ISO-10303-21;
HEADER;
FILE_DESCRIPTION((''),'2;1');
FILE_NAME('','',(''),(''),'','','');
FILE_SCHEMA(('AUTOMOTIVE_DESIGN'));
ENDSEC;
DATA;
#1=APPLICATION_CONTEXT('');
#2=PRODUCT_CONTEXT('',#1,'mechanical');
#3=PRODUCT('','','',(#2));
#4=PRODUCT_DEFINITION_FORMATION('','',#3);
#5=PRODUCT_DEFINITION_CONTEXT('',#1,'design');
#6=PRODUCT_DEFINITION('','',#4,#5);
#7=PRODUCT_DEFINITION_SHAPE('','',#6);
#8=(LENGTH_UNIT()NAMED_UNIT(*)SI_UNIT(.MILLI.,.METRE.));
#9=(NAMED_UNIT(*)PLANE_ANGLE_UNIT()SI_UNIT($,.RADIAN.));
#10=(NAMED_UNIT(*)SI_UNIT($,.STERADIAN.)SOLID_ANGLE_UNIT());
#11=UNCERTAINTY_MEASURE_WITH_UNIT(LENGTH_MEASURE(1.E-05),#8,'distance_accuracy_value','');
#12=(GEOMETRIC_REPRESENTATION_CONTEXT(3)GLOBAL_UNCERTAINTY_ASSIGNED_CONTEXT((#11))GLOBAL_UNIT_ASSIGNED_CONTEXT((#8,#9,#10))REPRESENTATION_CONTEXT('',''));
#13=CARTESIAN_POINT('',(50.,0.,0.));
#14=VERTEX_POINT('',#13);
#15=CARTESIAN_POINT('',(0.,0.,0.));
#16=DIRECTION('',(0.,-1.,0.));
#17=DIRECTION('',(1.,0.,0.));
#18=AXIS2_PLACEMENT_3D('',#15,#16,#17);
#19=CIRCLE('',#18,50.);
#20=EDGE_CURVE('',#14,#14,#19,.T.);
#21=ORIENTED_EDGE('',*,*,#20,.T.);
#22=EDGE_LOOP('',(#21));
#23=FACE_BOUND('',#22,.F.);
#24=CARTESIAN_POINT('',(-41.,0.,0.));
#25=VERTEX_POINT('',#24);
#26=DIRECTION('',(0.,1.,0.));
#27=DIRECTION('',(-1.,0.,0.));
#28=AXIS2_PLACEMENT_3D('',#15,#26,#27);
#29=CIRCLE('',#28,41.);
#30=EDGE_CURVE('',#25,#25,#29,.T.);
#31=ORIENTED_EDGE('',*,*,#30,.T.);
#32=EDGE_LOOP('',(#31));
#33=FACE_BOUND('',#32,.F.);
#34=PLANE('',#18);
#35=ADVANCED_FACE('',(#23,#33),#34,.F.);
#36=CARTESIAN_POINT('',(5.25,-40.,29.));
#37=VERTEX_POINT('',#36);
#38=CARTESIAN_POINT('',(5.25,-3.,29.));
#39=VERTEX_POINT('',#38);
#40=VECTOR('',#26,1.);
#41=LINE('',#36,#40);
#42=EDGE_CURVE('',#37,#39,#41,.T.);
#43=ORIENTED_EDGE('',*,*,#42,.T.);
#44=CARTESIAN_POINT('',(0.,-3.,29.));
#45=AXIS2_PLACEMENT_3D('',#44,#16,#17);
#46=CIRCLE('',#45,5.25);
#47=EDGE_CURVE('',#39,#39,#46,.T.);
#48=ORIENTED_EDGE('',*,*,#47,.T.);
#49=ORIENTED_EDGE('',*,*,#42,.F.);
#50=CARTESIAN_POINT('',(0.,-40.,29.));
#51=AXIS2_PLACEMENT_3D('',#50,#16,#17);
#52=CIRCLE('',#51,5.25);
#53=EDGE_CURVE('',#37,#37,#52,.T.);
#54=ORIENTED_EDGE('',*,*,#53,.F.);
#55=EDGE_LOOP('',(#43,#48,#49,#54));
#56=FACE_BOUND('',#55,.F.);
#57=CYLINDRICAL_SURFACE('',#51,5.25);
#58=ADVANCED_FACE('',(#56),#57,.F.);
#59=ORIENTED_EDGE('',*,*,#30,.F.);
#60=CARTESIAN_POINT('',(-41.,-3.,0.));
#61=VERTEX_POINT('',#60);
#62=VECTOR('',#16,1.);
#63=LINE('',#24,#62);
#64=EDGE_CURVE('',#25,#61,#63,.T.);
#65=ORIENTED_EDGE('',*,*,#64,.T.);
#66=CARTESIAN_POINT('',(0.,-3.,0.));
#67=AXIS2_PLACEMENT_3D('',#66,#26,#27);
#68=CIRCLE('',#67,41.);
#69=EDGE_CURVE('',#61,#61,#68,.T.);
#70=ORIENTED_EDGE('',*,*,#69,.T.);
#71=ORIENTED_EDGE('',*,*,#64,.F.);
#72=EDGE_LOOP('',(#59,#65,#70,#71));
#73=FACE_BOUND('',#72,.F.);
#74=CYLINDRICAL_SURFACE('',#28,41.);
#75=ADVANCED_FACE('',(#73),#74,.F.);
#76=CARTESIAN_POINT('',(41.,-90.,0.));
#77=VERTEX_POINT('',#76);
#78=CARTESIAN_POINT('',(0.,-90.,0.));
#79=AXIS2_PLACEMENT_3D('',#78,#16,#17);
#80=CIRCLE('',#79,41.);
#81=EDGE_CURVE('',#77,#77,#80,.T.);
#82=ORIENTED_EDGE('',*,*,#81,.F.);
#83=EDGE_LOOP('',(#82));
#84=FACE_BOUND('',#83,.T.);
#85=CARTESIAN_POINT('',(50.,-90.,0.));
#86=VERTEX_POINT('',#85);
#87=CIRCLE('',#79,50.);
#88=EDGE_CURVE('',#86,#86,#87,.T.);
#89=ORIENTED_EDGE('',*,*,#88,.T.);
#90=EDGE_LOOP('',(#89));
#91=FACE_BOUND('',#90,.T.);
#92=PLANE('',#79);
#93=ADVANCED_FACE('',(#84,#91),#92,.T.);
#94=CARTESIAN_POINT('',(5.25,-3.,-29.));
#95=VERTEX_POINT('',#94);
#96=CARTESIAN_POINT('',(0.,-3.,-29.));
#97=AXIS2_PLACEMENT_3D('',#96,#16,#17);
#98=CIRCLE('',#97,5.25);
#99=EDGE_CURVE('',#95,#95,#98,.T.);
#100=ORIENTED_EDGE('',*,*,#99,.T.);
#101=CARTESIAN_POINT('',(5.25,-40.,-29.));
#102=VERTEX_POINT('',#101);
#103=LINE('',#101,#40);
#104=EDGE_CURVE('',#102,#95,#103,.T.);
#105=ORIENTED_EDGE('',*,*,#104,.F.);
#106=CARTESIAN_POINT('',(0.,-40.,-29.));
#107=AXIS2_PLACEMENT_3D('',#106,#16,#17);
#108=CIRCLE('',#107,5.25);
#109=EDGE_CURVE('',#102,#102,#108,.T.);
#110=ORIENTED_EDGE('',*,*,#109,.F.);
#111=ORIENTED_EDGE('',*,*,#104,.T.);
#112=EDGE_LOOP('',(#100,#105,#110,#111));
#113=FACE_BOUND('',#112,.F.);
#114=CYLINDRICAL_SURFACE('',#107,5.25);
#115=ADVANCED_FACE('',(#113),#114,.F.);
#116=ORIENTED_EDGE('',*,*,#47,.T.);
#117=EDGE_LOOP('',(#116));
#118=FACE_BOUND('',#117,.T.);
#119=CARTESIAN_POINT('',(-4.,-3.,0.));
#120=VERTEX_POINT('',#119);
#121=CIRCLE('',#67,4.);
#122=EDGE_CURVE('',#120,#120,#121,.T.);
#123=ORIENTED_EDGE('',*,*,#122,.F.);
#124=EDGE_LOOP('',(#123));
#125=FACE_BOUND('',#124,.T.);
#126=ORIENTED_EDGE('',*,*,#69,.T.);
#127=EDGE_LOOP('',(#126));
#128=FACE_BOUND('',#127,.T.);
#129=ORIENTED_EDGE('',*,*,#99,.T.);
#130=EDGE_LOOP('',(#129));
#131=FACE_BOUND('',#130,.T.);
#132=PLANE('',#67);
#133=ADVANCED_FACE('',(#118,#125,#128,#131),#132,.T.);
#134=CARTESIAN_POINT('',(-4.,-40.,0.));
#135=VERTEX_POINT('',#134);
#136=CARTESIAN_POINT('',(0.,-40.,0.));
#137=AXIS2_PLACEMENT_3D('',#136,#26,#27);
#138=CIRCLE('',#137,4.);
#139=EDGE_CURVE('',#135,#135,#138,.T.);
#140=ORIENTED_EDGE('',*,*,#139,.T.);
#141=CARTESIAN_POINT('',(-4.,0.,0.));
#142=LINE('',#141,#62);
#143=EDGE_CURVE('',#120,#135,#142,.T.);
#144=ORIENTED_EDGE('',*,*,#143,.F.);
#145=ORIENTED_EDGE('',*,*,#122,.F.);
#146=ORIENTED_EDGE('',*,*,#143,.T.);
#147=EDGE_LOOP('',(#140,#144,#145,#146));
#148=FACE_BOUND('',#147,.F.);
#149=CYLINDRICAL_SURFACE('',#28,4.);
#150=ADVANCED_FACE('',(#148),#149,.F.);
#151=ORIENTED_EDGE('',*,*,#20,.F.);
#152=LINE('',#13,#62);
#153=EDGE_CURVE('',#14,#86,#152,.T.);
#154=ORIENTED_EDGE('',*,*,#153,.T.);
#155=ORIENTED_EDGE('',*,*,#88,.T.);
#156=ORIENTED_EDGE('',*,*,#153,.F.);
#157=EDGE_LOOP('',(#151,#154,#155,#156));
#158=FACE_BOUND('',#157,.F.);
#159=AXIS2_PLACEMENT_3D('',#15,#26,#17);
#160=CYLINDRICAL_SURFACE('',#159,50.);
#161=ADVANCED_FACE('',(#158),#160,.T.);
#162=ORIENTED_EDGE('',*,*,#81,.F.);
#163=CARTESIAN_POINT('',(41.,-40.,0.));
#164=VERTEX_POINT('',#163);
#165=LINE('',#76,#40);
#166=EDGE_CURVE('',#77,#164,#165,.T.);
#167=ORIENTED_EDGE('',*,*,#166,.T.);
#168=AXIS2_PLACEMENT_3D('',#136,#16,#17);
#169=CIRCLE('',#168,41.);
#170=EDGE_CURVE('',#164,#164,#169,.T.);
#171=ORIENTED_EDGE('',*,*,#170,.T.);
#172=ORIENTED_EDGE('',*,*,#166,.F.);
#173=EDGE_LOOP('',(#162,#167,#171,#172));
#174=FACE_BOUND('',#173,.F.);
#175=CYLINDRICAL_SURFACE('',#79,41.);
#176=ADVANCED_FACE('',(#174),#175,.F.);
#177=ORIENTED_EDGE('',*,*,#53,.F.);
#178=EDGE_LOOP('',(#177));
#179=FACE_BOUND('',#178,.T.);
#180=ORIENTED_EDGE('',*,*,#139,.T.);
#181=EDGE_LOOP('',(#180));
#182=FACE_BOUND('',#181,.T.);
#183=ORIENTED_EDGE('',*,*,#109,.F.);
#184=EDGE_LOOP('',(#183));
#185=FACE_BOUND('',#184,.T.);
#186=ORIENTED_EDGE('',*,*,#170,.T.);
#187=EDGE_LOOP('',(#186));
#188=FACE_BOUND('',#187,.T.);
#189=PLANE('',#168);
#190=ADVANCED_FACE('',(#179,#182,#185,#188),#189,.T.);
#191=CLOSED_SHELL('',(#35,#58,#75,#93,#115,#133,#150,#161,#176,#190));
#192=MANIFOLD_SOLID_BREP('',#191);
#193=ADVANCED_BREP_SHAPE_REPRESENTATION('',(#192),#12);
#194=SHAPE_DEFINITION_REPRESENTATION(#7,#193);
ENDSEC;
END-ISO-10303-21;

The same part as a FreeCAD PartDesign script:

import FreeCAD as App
import Part
import Sketcher
Q = App.Units.Quantity

doc = App.newDocument("Part")
body = doc.addObject("PartDesign::Body", "Body")

# Sketch on XZ plane
sketch1 = body.newObject("Sketcher::SketchObject", "Sketch")
sketch1.AttachmentSupport = (doc.getObject("XZ_Plane"), [""])
sketch1.MapMode = "FlatFace"
sketch1.addGeometry(Part.Circle(App.Vector(0, 0, 0), App.Vector(0, 0, 1), 50), False)
sketch1.addConstraint([
    Sketcher.Constraint("Coincident", 0, 3, -1, 1),
    Sketcher.Constraint("Diameter", 0, Q("100 mm")),
])
pad1 = body.newObject("PartDesign::Pad", "Pad")
pad1.Profile = sketch1
pad1.Length = 90

# Sketch on XZ plane
sketch2 = body.newObject("Sketcher::SketchObject", "Sketch001")
sketch2.AttachmentSupport = (doc.getObject("XZ_Plane"), [""])
sketch2.MapMode = "FlatFace"
sketch2.AttachmentOffset = App.Placement(App.Vector(0, 0, 90), App.Rotation())
sketch2.addGeometry(Part.Circle(App.Vector(0, 0, 0), App.Vector(0, 0, 1), 41), False)
sketch2.addConstraint([
    Sketcher.Constraint("Coincident", 0, 3, -1, 1),
    Sketcher.Constraint("Diameter", 0, Q("82 mm")),
])
pocket1 = body.newObject("PartDesign::Pocket", "Pocket")
pocket1.Profile = sketch2
pocket1.Length = 50

# Sketch on XZ plane
sketch3 = body.newObject("Sketcher::SketchObject", "Sketch002")
sketch3.AttachmentSupport = (doc.getObject("XZ_Plane"), [""])
sketch3.MapMode = "FlatFace"
sketch3.addGeometry(Part.Circle(App.Vector(0, 0, 0), App.Vector(0, 0, 1), 4), False)
sketch3.addConstraint([
    Sketcher.Constraint("Coincident", 0, 3, -1, 1),
    Sketcher.Constraint("Diameter", 0, Q("8 mm")),
])
pocket2 = body.newObject("PartDesign::Pocket", "Pocket001")
pocket2.Profile = sketch3
pocket2.Length = 151
pocket2.Reversed = True

# Sketch on XZ plane
sketch4 = body.newObject("Sketcher::SketchObject", "Sketch003")
sketch4.AttachmentSupport = (doc.getObject("XZ_Plane"), [""])
sketch4.MapMode = "FlatFace"
sketch4.addGeometry(Part.Circle(App.Vector(0, 0, 0), App.Vector(0, 0, 1), 41), False)
sketch4.addConstraint([
    Sketcher.Constraint("Coincident", 0, 3, -1, 1),
    Sketcher.Constraint("Diameter", 0, Q("82 mm")),
])
pocket3 = body.newObject("PartDesign::Pocket", "Pocket002")
pocket3.Profile = sketch4
pocket3.Length = 3
pocket3.Reversed = True

# Sketch on XZ plane
sketch5 = body.newObject("Sketcher::SketchObject", "Sketch004")
sketch5.AttachmentSupport = (doc.getObject("XZ_Plane"), [""])
sketch5.MapMode = "FlatFace"
sketch5.AttachmentOffset = App.Placement(App.Vector(0, 0, 40), App.Rotation())
sketch5.addGeometry([
    Part.Circle(App.Vector(0, 29, 0), App.Vector(0, 0, 1), 5),
    Part.Circle(App.Vector(0, -29, 0), App.Vector(0, 0, 1), 5),
], False)
sketch5.addConstraint([
    Sketcher.Constraint("Equal", 0, 1),
    Sketcher.Constraint("Symmetric", 0, 3, 1, 3, -1, 1),
    Sketcher.Constraint("PointOnObject", 0, 3, -2),
    Sketcher.Constraint("Diameter", 0, Q("10.5 mm")),
    Sketcher.Constraint("DistanceY", -1, 1, 0, 3, Q("29 mm")),
])
pocket4 = body.newObject("PartDesign::Pocket", "Pocket003")
pocket4.Profile = sketch5
pocket4.Length = 72

doc.recompute()
